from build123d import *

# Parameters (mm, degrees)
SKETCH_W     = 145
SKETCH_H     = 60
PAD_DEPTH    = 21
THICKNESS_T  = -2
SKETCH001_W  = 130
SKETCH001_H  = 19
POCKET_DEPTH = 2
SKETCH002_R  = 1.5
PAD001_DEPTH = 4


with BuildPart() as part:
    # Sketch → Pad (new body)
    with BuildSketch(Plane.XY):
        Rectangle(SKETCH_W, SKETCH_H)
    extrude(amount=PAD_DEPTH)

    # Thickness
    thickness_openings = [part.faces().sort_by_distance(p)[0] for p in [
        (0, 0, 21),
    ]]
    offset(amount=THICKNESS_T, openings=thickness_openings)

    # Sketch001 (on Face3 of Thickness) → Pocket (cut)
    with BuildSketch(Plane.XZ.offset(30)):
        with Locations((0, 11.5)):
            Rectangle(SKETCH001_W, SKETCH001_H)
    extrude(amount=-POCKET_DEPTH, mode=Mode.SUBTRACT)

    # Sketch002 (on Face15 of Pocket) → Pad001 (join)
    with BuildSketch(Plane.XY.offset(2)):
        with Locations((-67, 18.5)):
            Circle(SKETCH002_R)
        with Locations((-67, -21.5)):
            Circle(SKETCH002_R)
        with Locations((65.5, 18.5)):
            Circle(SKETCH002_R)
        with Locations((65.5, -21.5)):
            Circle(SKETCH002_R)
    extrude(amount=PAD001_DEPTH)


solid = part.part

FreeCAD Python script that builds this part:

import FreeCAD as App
import Part
import Sketcher
from FreeCAD import Vector


def faces_at(feature, points):
    """Names of the faces that lie closest to the given points."""
    faces = feature.Shape.Faces
    near = lambda p: min(range(len(faces)), key=lambda i: faces[i].distToShape(Part.Vertex(*p))[0])
    return sorted({f"Face{near(p) + 1}" for p in points})


def add_polygon(sketch, points):
    """Adds a closed chain of lines whose ends are joined by coincident constraints."""
    first, n = sketch.GeometryCount, len(points)
    for a, b in zip(points, points[1:] + points[:1]):
        sketch.addGeometry(Part.LineSegment(App.Vector(*a, 0), App.Vector(*b, 0)), False)
    for i in range(n):
        sketch.addConstraint(Sketcher.Constraint("Coincident", first + i, 2, first + (i + 1) % n, 1))

doc = App.newDocument("Part")
body = doc.addObject("PartDesign::Body", "Body")

sketch1 = body.newObject("Sketcher::SketchObject", "Sketch")
sketch1.AttachmentSupport = (doc.getObject("XY_Plane"), [""])
sketch1.MapMode = "FlatFace"
add_polygon(sketch1, [(-72, 30), (-72, -30), (72, -30), (72, 30)])
sketch1.addConstraint([
    Sketcher.Constraint("Vertical", 0),
    Sketcher.Constraint("Horizontal", 1),
    Sketcher.Constraint("Vertical", 2),
    Sketcher.Constraint("Horizontal", 3),
    Sketcher.Constraint("Symmetric", 0, 2, 2, 2, -1, 1),
    Sketcher.Constraint("DistanceX", 1, 1, 1, 2, 145.0),
    Sketcher.Constraint("DistanceY", 0, 2, 0, 1, 60.0),
])
pad1 = body.newObject("PartDesign::Pad", "Pad")
pad1.Profile = sketch1
pad1.Length = 21
doc.recompute()

thickness = body.newObject("PartDesign::Thickness", "Thickness")
thickness.Base = (pad1, faces_at(pad1, [(0, 0, 21)]))
thickness.Value = 2
thickness.Reversed = True
thickness.Join = "Arc"

sketch2 = body.newObject("Sketcher::SketchObject", "Sketch001")
sketch2.AttachmentSupport = (doc.getObject("XZ_Plane"), [""])
sketch2.MapMode = "FlatFace"
sketch2.AttachmentOffset = App.Placement(Vector(0, 0, 30), App.Rotation())
add_polygon(sketch2, [(-65, 21), (-65, 2), (65, 2), (65, 21)])
sketch2.addConstraint([
    Sketcher.Constraint("Vertical", 0),
    Sketcher.Constraint("Horizontal", 1),
    Sketcher.Constraint("Vertical", 2),
    Sketcher.Constraint("Horizontal", 3),
    Sketcher.Constraint("DistanceX", 1, 1, 1, 2, 130.0),
    Sketcher.Constraint("DistanceY", 0, 2, 0, 1, 19.0),
    Sketcher.Constraint("DistanceX", 0, 2, -1, 1, 65.0),
    Sketcher.Constraint("DistanceY", -1, 1, 0, 2, 2.0),
])
pocket1 = body.newObject("PartDesign::Pocket", "Pocket")
pocket1.Profile = sketch2
pocket1.Length = 2

sketch3 = body.newObject("Sketcher::SketchObject", "Sketch002")
sketch3.AttachmentSupport = (doc.getObject("XY_Plane"), [""])
sketch3.MapMode = "FlatFace"
sketch3.AttachmentOffset = App.Placement(Vector(0, 0, 2), App.Rotation())
sketch3.addGeometry([
    Part.Circle(Vector(-67, 18.5, 0), Vector(0, 0, 1), 1.5),
    Part.Circle(Vector(-67, -21.5, 0), Vector(0, 0, 1), 1.5),
    Part.Circle(Vector(65.5, 18.5, 0), Vector(0, 0, 1), 1.5),
    Part.Circle(Vector(65.5, -21.5, 0), Vector(0, 0, 1), 1.5),
], False)
sketch3.addConstraint([
    Sketcher.Constraint("Equal", 0, 1),
    Sketcher.Constraint("Equal", 1, 2),
    Sketcher.Constraint("Equal", 2, 3),
    Sketcher.Constraint("Horizontal", 0, 3, 2, 3),
    Sketcher.Constraint("Horizontal", 1, 3, 3, 3),
    Sketcher.Constraint("Vertical", 0, 3, 1, 3),
    Sketcher.Constraint("Vertical", 2, 3, 3, 3),
    Sketcher.Constraint("Diameter", 0, 3.0),
    Sketcher.Constraint("DistanceX", 0, 3, -1, 1, 67.0),
    Sketcher.Constraint("DistanceY", 1, 3, 0, 3, 40.0),
    Sketcher.Constraint("DistanceY", -1, 1, 0, 3, 18.5),
    Sketcher.Constraint("DistanceX", -1, 1, 2, 3, 65.5),
])
pad2 = body.newObject("PartDesign::Pad", "Pad001")
pad2.Profile = sketch3
pad2.Length = 4

doc.recompute()
